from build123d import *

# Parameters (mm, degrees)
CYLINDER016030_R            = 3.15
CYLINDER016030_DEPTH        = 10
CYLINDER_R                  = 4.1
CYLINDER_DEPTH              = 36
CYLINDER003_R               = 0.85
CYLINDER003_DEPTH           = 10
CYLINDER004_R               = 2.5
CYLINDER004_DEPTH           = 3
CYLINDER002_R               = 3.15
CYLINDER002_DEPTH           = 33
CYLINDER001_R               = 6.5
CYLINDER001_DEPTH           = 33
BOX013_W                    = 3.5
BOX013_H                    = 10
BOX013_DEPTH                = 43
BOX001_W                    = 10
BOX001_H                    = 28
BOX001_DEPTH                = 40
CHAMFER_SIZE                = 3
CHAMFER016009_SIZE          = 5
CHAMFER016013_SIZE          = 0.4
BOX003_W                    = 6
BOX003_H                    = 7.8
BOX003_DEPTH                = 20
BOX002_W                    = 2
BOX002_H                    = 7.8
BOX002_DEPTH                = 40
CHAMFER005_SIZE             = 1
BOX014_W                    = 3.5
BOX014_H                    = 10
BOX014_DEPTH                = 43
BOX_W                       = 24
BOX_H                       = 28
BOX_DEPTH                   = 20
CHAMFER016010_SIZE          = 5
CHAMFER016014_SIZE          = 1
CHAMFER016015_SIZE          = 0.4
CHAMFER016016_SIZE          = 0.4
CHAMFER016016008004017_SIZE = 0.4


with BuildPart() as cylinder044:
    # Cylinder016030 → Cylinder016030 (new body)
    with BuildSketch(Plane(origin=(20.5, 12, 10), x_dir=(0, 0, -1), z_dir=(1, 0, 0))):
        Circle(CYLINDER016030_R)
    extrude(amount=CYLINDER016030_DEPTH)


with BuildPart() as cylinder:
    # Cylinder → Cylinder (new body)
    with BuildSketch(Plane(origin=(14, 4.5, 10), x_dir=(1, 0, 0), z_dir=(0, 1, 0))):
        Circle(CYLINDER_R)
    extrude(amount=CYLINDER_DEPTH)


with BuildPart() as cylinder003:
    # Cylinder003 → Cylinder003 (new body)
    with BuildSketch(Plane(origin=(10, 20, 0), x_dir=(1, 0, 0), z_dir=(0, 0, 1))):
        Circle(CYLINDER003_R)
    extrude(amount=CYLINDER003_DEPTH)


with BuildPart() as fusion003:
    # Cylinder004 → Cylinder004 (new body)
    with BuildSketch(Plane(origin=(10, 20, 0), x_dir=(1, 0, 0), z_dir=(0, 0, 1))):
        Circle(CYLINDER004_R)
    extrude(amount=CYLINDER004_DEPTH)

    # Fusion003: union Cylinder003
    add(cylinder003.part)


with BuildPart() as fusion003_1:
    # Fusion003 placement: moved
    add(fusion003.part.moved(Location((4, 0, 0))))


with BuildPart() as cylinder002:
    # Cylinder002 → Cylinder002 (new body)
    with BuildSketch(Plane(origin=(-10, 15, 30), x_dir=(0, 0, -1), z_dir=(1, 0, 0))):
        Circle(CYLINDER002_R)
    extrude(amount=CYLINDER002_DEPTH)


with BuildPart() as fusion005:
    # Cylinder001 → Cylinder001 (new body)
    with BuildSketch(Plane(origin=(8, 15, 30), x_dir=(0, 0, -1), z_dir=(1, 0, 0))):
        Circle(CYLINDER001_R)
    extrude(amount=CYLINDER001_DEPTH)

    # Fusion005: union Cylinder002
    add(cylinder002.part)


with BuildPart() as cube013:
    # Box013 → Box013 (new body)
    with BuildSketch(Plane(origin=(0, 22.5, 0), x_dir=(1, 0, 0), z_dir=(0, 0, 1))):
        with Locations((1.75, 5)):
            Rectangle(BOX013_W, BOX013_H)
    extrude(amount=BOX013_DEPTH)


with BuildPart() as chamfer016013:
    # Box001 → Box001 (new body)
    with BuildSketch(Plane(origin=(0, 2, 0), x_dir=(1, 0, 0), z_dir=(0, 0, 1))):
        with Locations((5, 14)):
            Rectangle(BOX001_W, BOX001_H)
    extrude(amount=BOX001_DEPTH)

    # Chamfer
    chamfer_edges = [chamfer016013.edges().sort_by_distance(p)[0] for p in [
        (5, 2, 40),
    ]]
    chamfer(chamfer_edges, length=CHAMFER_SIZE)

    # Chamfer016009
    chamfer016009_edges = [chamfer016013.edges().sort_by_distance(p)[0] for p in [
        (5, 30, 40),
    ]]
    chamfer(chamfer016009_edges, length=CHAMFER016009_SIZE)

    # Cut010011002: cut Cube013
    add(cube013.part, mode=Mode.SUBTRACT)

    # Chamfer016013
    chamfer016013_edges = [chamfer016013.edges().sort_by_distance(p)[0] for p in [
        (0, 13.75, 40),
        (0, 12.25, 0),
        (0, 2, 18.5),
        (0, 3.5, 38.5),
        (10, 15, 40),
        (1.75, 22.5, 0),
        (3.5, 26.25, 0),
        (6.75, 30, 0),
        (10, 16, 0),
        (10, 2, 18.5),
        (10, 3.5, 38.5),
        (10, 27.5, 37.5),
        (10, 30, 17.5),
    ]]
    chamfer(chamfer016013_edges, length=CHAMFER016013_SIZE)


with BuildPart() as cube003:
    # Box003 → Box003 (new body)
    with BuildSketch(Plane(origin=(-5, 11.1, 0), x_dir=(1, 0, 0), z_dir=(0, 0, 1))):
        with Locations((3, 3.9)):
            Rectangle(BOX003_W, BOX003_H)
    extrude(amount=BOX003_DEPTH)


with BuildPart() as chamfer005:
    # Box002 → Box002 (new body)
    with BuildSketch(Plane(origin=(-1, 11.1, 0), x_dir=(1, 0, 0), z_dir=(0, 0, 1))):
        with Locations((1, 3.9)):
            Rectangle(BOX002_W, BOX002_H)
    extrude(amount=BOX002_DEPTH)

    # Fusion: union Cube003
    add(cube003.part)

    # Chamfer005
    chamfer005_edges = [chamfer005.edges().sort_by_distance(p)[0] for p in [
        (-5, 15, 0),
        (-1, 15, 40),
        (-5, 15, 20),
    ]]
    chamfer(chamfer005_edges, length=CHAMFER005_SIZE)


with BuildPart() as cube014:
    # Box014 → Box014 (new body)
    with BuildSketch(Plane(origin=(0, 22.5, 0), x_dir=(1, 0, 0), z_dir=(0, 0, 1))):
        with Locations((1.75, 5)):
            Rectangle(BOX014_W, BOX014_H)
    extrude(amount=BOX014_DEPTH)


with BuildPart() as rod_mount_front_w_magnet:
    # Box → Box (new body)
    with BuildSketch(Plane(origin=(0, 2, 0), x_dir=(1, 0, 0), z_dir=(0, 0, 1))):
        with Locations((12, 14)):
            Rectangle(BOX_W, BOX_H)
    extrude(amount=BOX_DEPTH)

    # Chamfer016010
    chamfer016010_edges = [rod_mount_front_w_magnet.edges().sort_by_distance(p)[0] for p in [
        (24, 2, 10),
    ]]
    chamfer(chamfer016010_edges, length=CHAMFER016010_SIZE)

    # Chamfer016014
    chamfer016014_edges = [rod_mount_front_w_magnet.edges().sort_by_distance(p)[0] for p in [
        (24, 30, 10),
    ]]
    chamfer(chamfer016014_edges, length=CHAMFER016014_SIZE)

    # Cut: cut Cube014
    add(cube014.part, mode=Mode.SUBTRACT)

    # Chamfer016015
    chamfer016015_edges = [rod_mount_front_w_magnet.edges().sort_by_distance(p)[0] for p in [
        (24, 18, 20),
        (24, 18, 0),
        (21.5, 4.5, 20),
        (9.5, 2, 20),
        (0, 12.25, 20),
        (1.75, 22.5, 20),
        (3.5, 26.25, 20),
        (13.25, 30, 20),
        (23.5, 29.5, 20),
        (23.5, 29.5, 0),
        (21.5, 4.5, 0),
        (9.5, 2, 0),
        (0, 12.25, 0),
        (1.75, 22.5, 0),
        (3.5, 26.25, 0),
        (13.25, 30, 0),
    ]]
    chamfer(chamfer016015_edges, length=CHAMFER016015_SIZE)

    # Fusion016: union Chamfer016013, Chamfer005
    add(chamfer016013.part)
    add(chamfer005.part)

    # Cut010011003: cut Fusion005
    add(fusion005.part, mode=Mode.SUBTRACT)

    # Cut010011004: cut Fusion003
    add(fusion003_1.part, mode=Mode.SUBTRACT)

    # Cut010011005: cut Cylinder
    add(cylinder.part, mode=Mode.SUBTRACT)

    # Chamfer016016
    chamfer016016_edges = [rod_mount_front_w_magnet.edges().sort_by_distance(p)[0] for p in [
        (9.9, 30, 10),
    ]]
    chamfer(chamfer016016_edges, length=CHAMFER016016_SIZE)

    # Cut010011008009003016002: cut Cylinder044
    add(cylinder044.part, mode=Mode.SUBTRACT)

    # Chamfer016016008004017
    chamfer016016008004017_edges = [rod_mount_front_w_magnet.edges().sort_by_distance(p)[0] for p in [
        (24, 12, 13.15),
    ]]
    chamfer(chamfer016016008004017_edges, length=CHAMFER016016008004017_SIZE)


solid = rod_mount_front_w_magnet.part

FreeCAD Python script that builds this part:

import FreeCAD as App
import Part
import Sketcher

V = App.Vector
Q = App.Units.Quantity


def edges_at(feature, points):
    """Names of the edges that pass closest to the given points."""
    edges = feature.Shape.Edges
    near = lambda p: min(range(len(edges)), key=lambda i: edges[i].distToShape(Part.Vertex(*p))[0])
    return sorted({f"Edge{near(p) + 1}" for p in points})

doc = App.newDocument("Part")
body = doc.addObject("PartDesign::Body", "Body")

# Sketch on YZ plane
sketch1 = body.newObject("Sketcher::SketchObject", "Sketch")
sketch1.AttachmentSupport = (doc.getObject("YZ_Plane"), [""])
sketch1.MapMode = "FlatFace"
sketch1.AttachmentOffset = App.Placement(V(0, 0, 20.5), App.Rotation())
sketch1.addGeometry(Part.Circle(V(12, 10, 0), V(0, 0, 1), 3.15), False)
sketch1.addConstraint([
    Sketcher.Constraint("Diameter", 0, Q("6.3 mm")),
    Sketcher.Constraint("DistanceX", -1, 1, 0, 3, Q("12 mm")),
    Sketcher.Constraint("DistanceY", -1, 1, 0, 3, Q("10 mm")),
])
pad1 = body.newObject("PartDesign::Pad", "Pad")
pad1.Profile = sketch1
pad1.Length = 10
body2 = doc.addObject("PartDesign::Body", "Body001")

# Sketch on XZ plane
sketch2 = body2.newObject("Sketcher::SketchObject", "Sketch001")
sketch2.AttachmentSupport = (doc.getObject("XZ_Plane001"), [""])
sketch2.MapMode = "FlatFace"
sketch2.AttachmentOffset = App.Placement(V(0, 0, -4.5), App.Rotation())
sketch2.addGeometry(Part.Circle(V(14, 10, 0), V(0, 0, 1), 4.1), False)
sketch2.addConstraint([
    Sketcher.Constraint("Diameter", 0, Q("8.2 mm")),
    Sketcher.Constraint("DistanceX", -1, 1, 0, 3, Q("14 mm")),
    Sketcher.Constraint("DistanceY", -1, 1, 0, 3, Q("10 mm")),
])
pad2 = body2.newObject("PartDesign::Pad", "Pad001")
pad2.Profile = sketch2
pad2.Length = 36
pad2.Reversed = True
body3 = doc.addObject("PartDesign::Body", "Body002")

# Sketch on XY plane
sketch3 = body3.newObject("Sketcher::SketchObject", "Sketch002")
sketch3.AttachmentSupport = (doc.getObject("XY_Plane002"), [""])
sketch3.MapMode = "FlatFace"
sketch3.addGeometry(Part.Circle(V(10, 20, 0), V(0, 0, 1), 0.85), False)
sketch3.addConstraint([
    Sketcher.Constraint("Diameter", 0, Q("1.7 mm")),
    Sketcher.Constraint("DistanceX", -1, 1, 0, 3, Q("10 mm")),
    Sketcher.Constraint("DistanceY", -1, 1, 0, 3, Q("20 mm")),
])
pad3 = body3.newObject("PartDesign::Pad", "Pad002")
pad3.Profile = sketch3
pad3.Length = 10
body4 = doc.addObject("PartDesign::Body", "Body003")

# Sketch on XY plane
sketch4 = body4.newObject("Sketcher::SketchObject", "Sketch003")
sketch4.AttachmentSupport = (doc.getObject("XY_Plane003"), [""])
sketch4.MapMode = "FlatFace"
sketch4.addGeometry(Part.Circle(V(10, 20, 0), V(0, 0, 1), 2.5), False)
sketch4.addConstraint([
    Sketcher.Constraint("Diameter", 0, Q("5 mm")),
    Sketcher.Constraint("DistanceX", -1, 1, 0, 3, Q("10 mm")),
    Sketcher.Constraint("DistanceY", -1, 1, 0, 3, Q("20 mm")),
])
pad4 = body4.newObject("PartDesign::Pad", "Pad003")
pad4.Profile = sketch4
pad4.Length = 3
doc.recompute()

boolean = body4.newObject("PartDesign::Boolean", "Boolean")
boolean.Type = "Fuse"
boolean.addObjects([body3])
body5 = doc.addObject("PartDesign::Body", "Body004")
doc.recompute()

body4.Placement = App.Placement(V(4, 0, 0), App.Rotation(V(0, 0, 1), 0))
boolean2 = body5.newObject("PartDesign::Boolean", "Boolean001")
boolean2.Type = "Fuse"
boolean2.addObjects([body4])
body6 = doc.addObject("PartDesign::Body", "Body005")

# Sketch on YZ plane
sketch5 = body6.newObject("Sketcher::SketchObject", "Sketch004")
sketch5.AttachmentSupport = (doc.getObject("YZ_Plane005"), [""])
sketch5.MapMode = "FlatFace"
sketch5.AttachmentOffset = App.Placement(V(0, 0, -10), App.Rotation())
sketch5.addGeometry(Part.Circle(V(15, 30, 0), V(0, 0, 1), 3.15), False)
sketch5.addConstraint([
    Sketcher.Constraint("Diameter", 0, Q("6.3 mm")),
    Sketcher.Constraint("DistanceX", -1, 1, 0, 3, Q("15 mm")),
    Sketcher.Constraint("DistanceY", -1, 1, 0, 3, Q("30 mm")),
])
pad5 = body6.newObject("PartDesign::Pad", "Pad004")
pad5.Profile = sketch5
pad5.Length = 33
body7 = doc.addObject("PartDesign::Body", "Body006")

# Sketch on YZ plane
sketch6 = body7.newObject("Sketcher::SketchObject", "Sketch005")
sketch6.AttachmentSupport = (doc.getObject("YZ_Plane006"), [""])
sketch6.MapMode = "FlatFace"
sketch6.AttachmentOffset = App.Placement(V(0, 0, 8), App.Rotation())
sketch6.addGeometry(Part.Circle(V(15, 30, 0), V(0, 0, 1), 6.5), False)
sketch6.addConstraint([
    Sketcher.Constraint("Diameter", 0, Q("13 mm")),
    Sketcher.Constraint("DistanceX", -1, 1, 0, 3, Q("15 mm")),
    Sketcher.Constraint("DistanceY", -1, 1, 0, 3, Q("30 mm")),
])
pad6 = body7.newObject("PartDesign::Pad", "Pad005")
pad6.Profile = sketch6
pad6.Length = 33
doc.recompute()

boolean3 = body7.newObject("PartDesign::Boolean", "Boolean002")
boolean3.Type = "Fuse"
boolean3.addObjects([body6])
body8 = doc.addObject("PartDesign::Body", "Body007")

# Sketch on XY plane
sketch7 = body8.newObject("Sketcher::SketchObject", "Sketch006")
sketch7.AttachmentSupport = (doc.getObject("XY_Plane007"), [""])
sketch7.MapMode = "FlatFace"
sketch7.addGeometry([
    Part.LineSegment(V(0, 32.5, 0), V(0, 22.5, 0)),
    Part.LineSegment(V(0, 22.5, 0), V(3.5, 22.5, 0)),
    Part.LineSegment(V(3.5, 22.5, 0), V(3.5, 32.5, 0)),
    Part.LineSegment(V(3.5, 32.5, 0), V(0, 32.5, 0)),
], False)
sketch7.addConstraint([
    Sketcher.Constraint("Coincident", 0, 2, 1, 1),
    Sketcher.Constraint("Coincident", 1, 2, 2, 1),
    Sketcher.Constraint("Coincident", 2, 2, 3, 1),
    Sketcher.Constraint("Coincident", 3, 2, 0, 1),
    Sketcher.Constraint("Vertical", 0),
    Sketcher.Constraint("Horizontal", 1),
    Sketcher.Constraint("Vertical", 2),
    Sketcher.Constraint("Horizontal", 3),
    Sketcher.Constraint("PointOnObject", 0, 2, -2),
    Sketcher.Constraint("DistanceY", 0, 2, 0, 1, Q("10 mm")),
    Sketcher.Constraint("DistanceX", 1, 1, 1, 2, Q("3.5 mm")),
    Sketcher.Constraint("DistanceY", -1, 1, 0, 2, Q("22.5 mm")),
])
pad7 = body8.newObject("PartDesign::Pad", "Pad006")
pad7.Profile = sketch7
pad7.Length = 43
body9 = doc.addObject("PartDesign::Body", "Body008")

# Sketch on XY plane
sketch8 = body9.newObject("Sketcher::SketchObject", "Sketch007")
sketch8.AttachmentSupport = (doc.getObject("XY_Plane008"), [""])
sketch8.MapMode = "FlatFace"
sketch8.addGeometry([
    Part.LineSegment(V(0, 30, 0), V(0, 2, 0)),
    Part.LineSegment(V(0, 2, 0), V(10, 2, 0)),
    Part.LineSegment(V(10, 2, 0), V(10, 30, 0)),
    Part.LineSegment(V(10, 30, 0), V(0, 30, 0)),
], False)
sketch8.addConstraint([
    Sketcher.Constraint("Coincident", 0, 2, 1, 1),
    Sketcher.Constraint("Coincident", 1, 2, 2, 1),
    Sketcher.Constraint("Coincident", 2, 2, 3, 1),
    Sketcher.Constraint("Coincident", 3, 2, 0, 1),
    Sketcher.Constraint("Vertical", 0),
    Sketcher.Constraint("Horizontal", 1),
    Sketcher.Constraint("Vertical", 2),
    Sketcher.Constraint("Horizontal", 3),
    Sketcher.Constraint("PointOnObject", 0, 2, -2),
    Sketcher.Constraint("DistanceX", 1, 1, 1, 2, Q("10 mm")),
    Sketcher.Constraint("DistanceY", 0, 2, 0, 1, Q("28 mm")),
    Sketcher.Constraint("DistanceY", -1, 1, 0, 2, Q("2 mm")),
])
pad8 = body9.newObject("PartDesign::Pad", "Pad007")
pad8.Profile = sketch8
pad8.Length = 40
doc.recompute()

chamfer = body9.newObject("PartDesign::Chamfer", "Chamfer")
chamfer.Base = (pad8, edges_at(pad8, [(5, 2, 40)]))
chamfer.Size = 3
doc.recompute()

chamfer2 = body9.newObject("PartDesign::Chamfer", "Chamfer001")
chamfer2.Base = (chamfer, edges_at(chamfer, [(5, 30, 40)]))
chamfer2.Size = 5
doc.recompute()

boolean4 = body9.newObject("PartDesign::Boolean", "Boolean003")
boolean4.Type = "Cut"
boolean4.addObjects([body8])
doc.recompute()

chamfer3 = body9.newObject("PartDesign::Chamfer", "Chamfer002")
chamfer3.Base = (boolean4, edges_at(boolean4, [
    (0, 13.75, 40),
    (0, 12.25, 0),
    (0, 2, 18.5),
    (0, 3.5, 38.5),
    (10, 15, 40),
    (1.75, 22.5, 0),
    (3.5, 26.25, 0),
    (6.75, 30, 0),
    (10, 16, 0),
    (10, 2, 18.5),
    (10, 3.5, 38.5),
    (10, 27.5, 37.5),
    (10, 30, 17.5),
]))
chamfer3.Size = 0.4
body10 = doc.addObject("PartDesign::Body", "Body009")

# Sketch on XY plane
sketch9 = body10.newObject("Sketcher::SketchObject", "Sketch008")
sketch9.AttachmentSupport = (doc.getObject("XY_Plane009"), [""])
sketch9.MapMode = "FlatFace"
sketch9.addGeometry([
    Part.LineSegment(V(-5, 18.9, 0), V(-5, 11.1, 0)),
    Part.LineSegment(V(-5, 11.1, 0), V(1, 11.1, 0)),
    Part.LineSegment(V(1, 11.1, 0), V(1, 18.9, 0)),
    Part.LineSegment(V(1, 18.9, 0), V(-5, 18.9, 0)),
], False)
sketch9.addConstraint([
    Sketcher.Constraint("Coincident", 0, 2, 1, 1),
    Sketcher.Constraint("Coincident", 1, 2, 2, 1),
    Sketcher.Constraint("Coincident", 2, 2, 3, 1),
    Sketcher.Constraint("Coincident", 3, 2, 0, 1),
    Sketcher.Constraint("Vertical", 0),
    Sketcher.Constraint("Horizontal", 1),
    Sketcher.Constraint("Vertical", 2),
    Sketcher.Constraint("Horizontal", 3),
    Sketcher.Constraint("DistanceX", 1, 1, 1, 2, Q("6 mm")),
    Sketcher.Constraint("DistanceY", 0, 2, 0, 1, Q("7.8 mm")),
    Sketcher.Constraint("DistanceX", 0, 2, -1, 1, Q("5 mm")),
    Sketcher.Constraint("DistanceY", -1, 1, 0, 2, Q("11.1 mm")),
])
pad9 = body10.newObject("PartDesign::Pad", "Pad008")
pad9.Profile = sketch9
pad9.Length = 20
body11 = doc.addObject("PartDesign::Body", "Body010")

# Sketch on XY plane
sketch10 = body11.newObject("Sketcher::SketchObject", "Sketch009")
sketch10.AttachmentSupport = (doc.getObject("XY_Plane010"), [""])
sketch10.MapMode = "FlatFace"
sketch10.addGeometry([
    Part.LineSegment(V(-1, 18.9, 0), V(-1, 11.1, 0)),
    Part.LineSegment(V(-1, 11.1, 0), V(1, 11.1, 0)),
    Part.LineSegment(V(1, 11.1, 0), V(1, 18.9, 0)),
    Part.LineSegment(V(1, 18.9, 0), V(-1, 18.9, 0)),
], False)
sketch10.addConstraint([
    Sketcher.Constraint("Coincident", 0, 2, 1, 1),
    Sketcher.Constraint("Coincident", 1, 2, 2, 1),
    Sketcher.Constraint("Coincident", 2, 2, 3, 1),
    Sketcher.Constraint("Coincident", 3, 2, 0, 1),
    Sketcher.Constraint("Vertical", 0),
    Sketcher.Constraint("Horizontal", 1),
    Sketcher.Constraint("Vertical", 2),
    Sketcher.Constraint("Horizontal", 3),
    Sketcher.Constraint("DistanceX", 1, 1, 1, 2, Q("2 mm")),
    Sketcher.Constraint("DistanceY", 0, 2, 0, 1, Q("7.8 mm")),
    Sketcher.Constraint("DistanceX", 0, 2, -1, 1, Q("1 mm")),
    Sketcher.Constraint("DistanceY", -1, 1, 0, 2, Q("11.1 mm")),
])
pad10 = body11.newObject("PartDesign::Pad", "Pad009")
pad10.Profile = sketch10
pad10.Length = 40
doc.recompute()

boolean5 = body11.newObject("PartDesign::Boolean", "Boolean004")
boolean5.Type = "Fuse"
boolean5.addObjects([body10])
doc.recompute()

chamfer4 = body11.newObject("PartDesign::Chamfer", "Chamfer003")
chamfer4.Base = (boolean5, edges_at(boolean5, [(-5, 15, 0), (-1, 15, 40), (-5, 15, 20)]))
chamfer4.Size = 1
body12 = doc.addObject("PartDesign::Body", "Body011")

# Sketch on XY plane
sketch11 = body12.newObject("Sketcher::SketchObject", "Sketch010")
sketch11.AttachmentSupport = (doc.getObject("XY_Plane011"), [""])
sketch11.MapMode = "FlatFace"
sketch11.addGeometry([
    Part.LineSegment(V(0, 32.5, 0), V(0, 22.5, 0)),
    Part.LineSegment(V(0, 22.5, 0), V(3.5, 22.5, 0)),
    Part.LineSegment(V(3.5, 22.5, 0), V(3.5, 32.5, 0)),
    Part.LineSegment(V(3.5, 32.5, 0), V(0, 32.5, 0)),
], False)
sketch11.addConstraint([
    Sketcher.Constraint("Coincident", 0, 2, 1, 1),
    Sketcher.Constraint("Coincident", 1, 2, 2, 1),
    Sketcher.Constraint("Coincident", 2, 2, 3, 1),
    Sketcher.Constraint("Coincident", 3, 2, 0, 1),
    Sketcher.Constraint("Vertical", 0),
    Sketcher.Constraint("Horizontal", 1),
    Sketcher.Constraint("Vertical", 2),
    Sketcher.Constraint("Horizontal", 3),
    Sketcher.Constraint("PointOnObject", 0, 2, -2),
    Sketcher.Constraint("DistanceY", 0, 2, 0, 1, Q("10 mm")),
    Sketcher.Constraint("DistanceX", 1, 1, 1, 2, Q("3.5 mm")),
    Sketcher.Constraint("DistanceY", -1, 1, 0, 2, Q("22.5 mm")),
])
pad11 = body12.newObject("PartDesign::Pad", "Pad010")
pad11.Profile = sketch11
pad11.Length = 43
body13 = doc.addObject("PartDesign::Body", "Body012")

# Sketch on XY plane
sketch12 = body13.newObject("Sketcher::SketchObject", "Sketch011")
sketch12.AttachmentSupport = (doc.getObject("XY_Plane012"), [""])
sketch12.MapMode = "FlatFace"
sketch12.addGeometry([
    Part.LineSegment(V(0, 30, 0), V(0, 2, 0)),
    Part.LineSegment(V(0, 2, 0), V(24, 2, 0)),
    Part.LineSegment(V(24, 2, 0), V(24, 30, 0)),
    Part.LineSegment(V(24, 30, 0), V(0, 30, 0)),
], False)
sketch12.addConstraint([
    Sketcher.Constraint("Coincident", 0, 2, 1, 1),
    Sketcher.Constraint("Coincident", 1, 2, 2, 1),
    Sketcher.Constraint("Coincident", 2, 2, 3, 1),
    Sketcher.Constraint("Coincident", 3, 2, 0, 1),
    Sketcher.Constraint("Vertical", 0),
    Sketcher.Constraint("Horizontal", 1),
    Sketcher.Constraint("Vertical", 2),
    Sketcher.Constraint("Horizontal", 3),
    Sketcher.Constraint("PointOnObject", 0, 2, -2),
    Sketcher.Constraint("DistanceX", 1, 1, 1, 2, Q("24 mm")),
    Sketcher.Constraint("DistanceY", 0, 2, 0, 1, Q("28 mm")),
    Sketcher.Constraint("DistanceY", -1, 1, 0, 2, Q("2 mm")),
])
pad12 = body13.newObject("PartDesign::Pad", "Pad011")
pad12.Profile = sketch12
pad12.Length = 20
doc.recompute()

chamfer5 = body13.newObject("PartDesign::Chamfer", "Chamfer004")
chamfer5.Base = (pad12, edges_at(pad12, [(24, 2, 10)]))
chamfer5.Size = 5
doc.recompute()

chamfer6 = body13.newObject("PartDesign::Chamfer", "Chamfer005")
chamfer6.Base = (chamfer5, edges_at(chamfer5, [(24, 30, 10)]))
chamfer6.Size = 1
doc.recompute()

boolean6 = body13.newObject("PartDesign::Boolean", "Boolean005")
boolean6.Type = "Cut"
boolean6.addObjects([body12])
doc.recompute()

chamfer7 = body13.newObject("PartDesign::Chamfer", "Chamfer006")
chamfer7.Base = (boolean6, edges_at(boolean6, [
    (24, 18, 20),
    (24, 18, 0),
    (21.5, 4.5, 20),
    (9.5, 2, 20),
    (0, 12.25, 20),
    (1.75, 22.5, 20),
    (3.5, 26.25, 20),
    (13.25, 30, 20),
    (23.5, 29.5, 20),
    (23.5, 29.5, 0),
    (21.5, 4.5, 0),
    (9.5, 2, 0),
    (0, 12.25, 0),
    (1.75, 22.5, 0),
    (3.5, 26.25, 0),
    (13.25, 30, 0),
]))
chamfer7.Size = 0.4
doc.recompute()

boolean7 = body13.newObject("PartDesign::Boolean", "Boolean006")
boolean7.Type = "Fuse"
boolean7.addObjects([body9])
doc.recompute()

boolean8 = body13.newObject("PartDesign::Boolean", "Boolean007")
boolean8.Type = "Fuse"
boolean8.addObjects([body11])
doc.recompute()

boolean9 = body13.newObject("PartDesign::Boolean", "Boolean008")
boolean9.Type = "Cut"
boolean9.addObjects([body7])
doc.recompute()

boolean10 = body13.newObject("PartDesign::Boolean", "Boolean009")
boolean10.Type = "Cut"
boolean10.addObjects([body5])
doc.recompute()

boolean11 = body13.newObject("PartDesign::Boolean", "Boolean010")
boolean11.Type = "Cut"
boolean11.addObjects([body2])
doc.recompute()

chamfer8 = body13.newObject("PartDesign::Chamfer", "Chamfer007")
chamfer8.Base = (boolean11, edges_at(boolean11, [(9.9, 30, 10)]))
chamfer8.Size = 0.4
doc.recompute()

boolean12 = body13.newObject("PartDesign::Boolean", "Boolean011")
boolean12.Type = "Cut"
boolean12.addObjects([body])
doc.recompute()

chamfer9 = body13.newObject("PartDesign::Chamfer", "Chamfer008")
chamfer9.Base = (boolean12, edges_at(boolean12, [(24, 12, 13.15)]))
chamfer9.Size = 0.4

doc.recompute()
